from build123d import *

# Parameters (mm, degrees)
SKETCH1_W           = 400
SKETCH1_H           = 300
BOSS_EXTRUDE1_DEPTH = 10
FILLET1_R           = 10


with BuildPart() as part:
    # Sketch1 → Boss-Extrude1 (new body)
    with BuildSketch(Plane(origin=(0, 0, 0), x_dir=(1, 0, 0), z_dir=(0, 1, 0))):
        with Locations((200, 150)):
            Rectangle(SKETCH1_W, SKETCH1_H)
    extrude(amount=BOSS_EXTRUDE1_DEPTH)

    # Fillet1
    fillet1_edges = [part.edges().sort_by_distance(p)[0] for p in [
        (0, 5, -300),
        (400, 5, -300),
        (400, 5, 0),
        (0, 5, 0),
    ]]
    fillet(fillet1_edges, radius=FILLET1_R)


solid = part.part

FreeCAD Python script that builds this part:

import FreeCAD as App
import Part
import Sketcher
from FreeCAD import Vector


def edges_at(feature, points):
    """Names of the edges that pass closest to the given points."""
    edges = feature.Shape.Edges
    near = lambda p: min(range(len(edges)), key=lambda i: edges[i].distToShape(Part.Vertex(*p))[0])
    return sorted({f"Edge{near(p) + 1}" for p in points})

doc = App.newDocument("Part")
body = doc.addObject("PartDesign::Body", "Body")

# Sketch on XZ plane
sketch1 = doc.addObject("Sketcher::SketchObject", "Sketch")
body.addObject(sketch1)
sketch1.AttachmentSupport = (doc.XZ_Plane, [""])
sketch1.MapMode = "FlatFace"
sketch1.addGeometry([
    Part.LineSegment(Vector(0, -300, 0), Vector(0, 0, 0)),
    Part.LineSegment(Vector(0, 0, 0), Vector(400, 0, 0)),
    Part.LineSegment(Vector(400, 0, 0), Vector(400, -300, 0)),
    Part.LineSegment(Vector(400, -300, 0), Vector(0, -300, 0)),
], False)
sketch1.addConstraint([
    Sketcher.Constraint("Coincident", 0, 2, 1, 1),
    Sketcher.Constraint("Coincident", 1, 2, 2, 1),
    Sketcher.Constraint("Coincident", 2, 2, 3, 1),
    Sketcher.Constraint("Coincident", 3, 2, 0, 1),
    Sketcher.Constraint("Vertical", 0),
    Sketcher.Constraint("Horizontal", 1),
    Sketcher.Constraint("Vertical", 2),
    Sketcher.Constraint("Horizontal", 3),
    Sketcher.Constraint("Coincident", 0, 2, -1, 1),
    Sketcher.Constraint("DistanceX", 1, 1, 1, 2, 400.0),
    Sketcher.Constraint("DistanceY", 0, 1, 0, 2, 300.0),
])
pad1 = doc.addObject("PartDesign::Pad", "Pad")
body.addObject(pad1)
pad1.Profile = sketch1
pad1.Length = 10
pad1.Reversed = True
doc.recompute()

fillet = doc.addObject("PartDesign::Fillet", "Fillet")
body.addObject(fillet)
fillet.Base = (pad1, edges_at(pad1, [
    (0, 5, -300),
    (400, 5, -300),
    (400, 5, 0),
    (0, 5, 0),
]))
fillet.Radius = 10

doc.recompute()
